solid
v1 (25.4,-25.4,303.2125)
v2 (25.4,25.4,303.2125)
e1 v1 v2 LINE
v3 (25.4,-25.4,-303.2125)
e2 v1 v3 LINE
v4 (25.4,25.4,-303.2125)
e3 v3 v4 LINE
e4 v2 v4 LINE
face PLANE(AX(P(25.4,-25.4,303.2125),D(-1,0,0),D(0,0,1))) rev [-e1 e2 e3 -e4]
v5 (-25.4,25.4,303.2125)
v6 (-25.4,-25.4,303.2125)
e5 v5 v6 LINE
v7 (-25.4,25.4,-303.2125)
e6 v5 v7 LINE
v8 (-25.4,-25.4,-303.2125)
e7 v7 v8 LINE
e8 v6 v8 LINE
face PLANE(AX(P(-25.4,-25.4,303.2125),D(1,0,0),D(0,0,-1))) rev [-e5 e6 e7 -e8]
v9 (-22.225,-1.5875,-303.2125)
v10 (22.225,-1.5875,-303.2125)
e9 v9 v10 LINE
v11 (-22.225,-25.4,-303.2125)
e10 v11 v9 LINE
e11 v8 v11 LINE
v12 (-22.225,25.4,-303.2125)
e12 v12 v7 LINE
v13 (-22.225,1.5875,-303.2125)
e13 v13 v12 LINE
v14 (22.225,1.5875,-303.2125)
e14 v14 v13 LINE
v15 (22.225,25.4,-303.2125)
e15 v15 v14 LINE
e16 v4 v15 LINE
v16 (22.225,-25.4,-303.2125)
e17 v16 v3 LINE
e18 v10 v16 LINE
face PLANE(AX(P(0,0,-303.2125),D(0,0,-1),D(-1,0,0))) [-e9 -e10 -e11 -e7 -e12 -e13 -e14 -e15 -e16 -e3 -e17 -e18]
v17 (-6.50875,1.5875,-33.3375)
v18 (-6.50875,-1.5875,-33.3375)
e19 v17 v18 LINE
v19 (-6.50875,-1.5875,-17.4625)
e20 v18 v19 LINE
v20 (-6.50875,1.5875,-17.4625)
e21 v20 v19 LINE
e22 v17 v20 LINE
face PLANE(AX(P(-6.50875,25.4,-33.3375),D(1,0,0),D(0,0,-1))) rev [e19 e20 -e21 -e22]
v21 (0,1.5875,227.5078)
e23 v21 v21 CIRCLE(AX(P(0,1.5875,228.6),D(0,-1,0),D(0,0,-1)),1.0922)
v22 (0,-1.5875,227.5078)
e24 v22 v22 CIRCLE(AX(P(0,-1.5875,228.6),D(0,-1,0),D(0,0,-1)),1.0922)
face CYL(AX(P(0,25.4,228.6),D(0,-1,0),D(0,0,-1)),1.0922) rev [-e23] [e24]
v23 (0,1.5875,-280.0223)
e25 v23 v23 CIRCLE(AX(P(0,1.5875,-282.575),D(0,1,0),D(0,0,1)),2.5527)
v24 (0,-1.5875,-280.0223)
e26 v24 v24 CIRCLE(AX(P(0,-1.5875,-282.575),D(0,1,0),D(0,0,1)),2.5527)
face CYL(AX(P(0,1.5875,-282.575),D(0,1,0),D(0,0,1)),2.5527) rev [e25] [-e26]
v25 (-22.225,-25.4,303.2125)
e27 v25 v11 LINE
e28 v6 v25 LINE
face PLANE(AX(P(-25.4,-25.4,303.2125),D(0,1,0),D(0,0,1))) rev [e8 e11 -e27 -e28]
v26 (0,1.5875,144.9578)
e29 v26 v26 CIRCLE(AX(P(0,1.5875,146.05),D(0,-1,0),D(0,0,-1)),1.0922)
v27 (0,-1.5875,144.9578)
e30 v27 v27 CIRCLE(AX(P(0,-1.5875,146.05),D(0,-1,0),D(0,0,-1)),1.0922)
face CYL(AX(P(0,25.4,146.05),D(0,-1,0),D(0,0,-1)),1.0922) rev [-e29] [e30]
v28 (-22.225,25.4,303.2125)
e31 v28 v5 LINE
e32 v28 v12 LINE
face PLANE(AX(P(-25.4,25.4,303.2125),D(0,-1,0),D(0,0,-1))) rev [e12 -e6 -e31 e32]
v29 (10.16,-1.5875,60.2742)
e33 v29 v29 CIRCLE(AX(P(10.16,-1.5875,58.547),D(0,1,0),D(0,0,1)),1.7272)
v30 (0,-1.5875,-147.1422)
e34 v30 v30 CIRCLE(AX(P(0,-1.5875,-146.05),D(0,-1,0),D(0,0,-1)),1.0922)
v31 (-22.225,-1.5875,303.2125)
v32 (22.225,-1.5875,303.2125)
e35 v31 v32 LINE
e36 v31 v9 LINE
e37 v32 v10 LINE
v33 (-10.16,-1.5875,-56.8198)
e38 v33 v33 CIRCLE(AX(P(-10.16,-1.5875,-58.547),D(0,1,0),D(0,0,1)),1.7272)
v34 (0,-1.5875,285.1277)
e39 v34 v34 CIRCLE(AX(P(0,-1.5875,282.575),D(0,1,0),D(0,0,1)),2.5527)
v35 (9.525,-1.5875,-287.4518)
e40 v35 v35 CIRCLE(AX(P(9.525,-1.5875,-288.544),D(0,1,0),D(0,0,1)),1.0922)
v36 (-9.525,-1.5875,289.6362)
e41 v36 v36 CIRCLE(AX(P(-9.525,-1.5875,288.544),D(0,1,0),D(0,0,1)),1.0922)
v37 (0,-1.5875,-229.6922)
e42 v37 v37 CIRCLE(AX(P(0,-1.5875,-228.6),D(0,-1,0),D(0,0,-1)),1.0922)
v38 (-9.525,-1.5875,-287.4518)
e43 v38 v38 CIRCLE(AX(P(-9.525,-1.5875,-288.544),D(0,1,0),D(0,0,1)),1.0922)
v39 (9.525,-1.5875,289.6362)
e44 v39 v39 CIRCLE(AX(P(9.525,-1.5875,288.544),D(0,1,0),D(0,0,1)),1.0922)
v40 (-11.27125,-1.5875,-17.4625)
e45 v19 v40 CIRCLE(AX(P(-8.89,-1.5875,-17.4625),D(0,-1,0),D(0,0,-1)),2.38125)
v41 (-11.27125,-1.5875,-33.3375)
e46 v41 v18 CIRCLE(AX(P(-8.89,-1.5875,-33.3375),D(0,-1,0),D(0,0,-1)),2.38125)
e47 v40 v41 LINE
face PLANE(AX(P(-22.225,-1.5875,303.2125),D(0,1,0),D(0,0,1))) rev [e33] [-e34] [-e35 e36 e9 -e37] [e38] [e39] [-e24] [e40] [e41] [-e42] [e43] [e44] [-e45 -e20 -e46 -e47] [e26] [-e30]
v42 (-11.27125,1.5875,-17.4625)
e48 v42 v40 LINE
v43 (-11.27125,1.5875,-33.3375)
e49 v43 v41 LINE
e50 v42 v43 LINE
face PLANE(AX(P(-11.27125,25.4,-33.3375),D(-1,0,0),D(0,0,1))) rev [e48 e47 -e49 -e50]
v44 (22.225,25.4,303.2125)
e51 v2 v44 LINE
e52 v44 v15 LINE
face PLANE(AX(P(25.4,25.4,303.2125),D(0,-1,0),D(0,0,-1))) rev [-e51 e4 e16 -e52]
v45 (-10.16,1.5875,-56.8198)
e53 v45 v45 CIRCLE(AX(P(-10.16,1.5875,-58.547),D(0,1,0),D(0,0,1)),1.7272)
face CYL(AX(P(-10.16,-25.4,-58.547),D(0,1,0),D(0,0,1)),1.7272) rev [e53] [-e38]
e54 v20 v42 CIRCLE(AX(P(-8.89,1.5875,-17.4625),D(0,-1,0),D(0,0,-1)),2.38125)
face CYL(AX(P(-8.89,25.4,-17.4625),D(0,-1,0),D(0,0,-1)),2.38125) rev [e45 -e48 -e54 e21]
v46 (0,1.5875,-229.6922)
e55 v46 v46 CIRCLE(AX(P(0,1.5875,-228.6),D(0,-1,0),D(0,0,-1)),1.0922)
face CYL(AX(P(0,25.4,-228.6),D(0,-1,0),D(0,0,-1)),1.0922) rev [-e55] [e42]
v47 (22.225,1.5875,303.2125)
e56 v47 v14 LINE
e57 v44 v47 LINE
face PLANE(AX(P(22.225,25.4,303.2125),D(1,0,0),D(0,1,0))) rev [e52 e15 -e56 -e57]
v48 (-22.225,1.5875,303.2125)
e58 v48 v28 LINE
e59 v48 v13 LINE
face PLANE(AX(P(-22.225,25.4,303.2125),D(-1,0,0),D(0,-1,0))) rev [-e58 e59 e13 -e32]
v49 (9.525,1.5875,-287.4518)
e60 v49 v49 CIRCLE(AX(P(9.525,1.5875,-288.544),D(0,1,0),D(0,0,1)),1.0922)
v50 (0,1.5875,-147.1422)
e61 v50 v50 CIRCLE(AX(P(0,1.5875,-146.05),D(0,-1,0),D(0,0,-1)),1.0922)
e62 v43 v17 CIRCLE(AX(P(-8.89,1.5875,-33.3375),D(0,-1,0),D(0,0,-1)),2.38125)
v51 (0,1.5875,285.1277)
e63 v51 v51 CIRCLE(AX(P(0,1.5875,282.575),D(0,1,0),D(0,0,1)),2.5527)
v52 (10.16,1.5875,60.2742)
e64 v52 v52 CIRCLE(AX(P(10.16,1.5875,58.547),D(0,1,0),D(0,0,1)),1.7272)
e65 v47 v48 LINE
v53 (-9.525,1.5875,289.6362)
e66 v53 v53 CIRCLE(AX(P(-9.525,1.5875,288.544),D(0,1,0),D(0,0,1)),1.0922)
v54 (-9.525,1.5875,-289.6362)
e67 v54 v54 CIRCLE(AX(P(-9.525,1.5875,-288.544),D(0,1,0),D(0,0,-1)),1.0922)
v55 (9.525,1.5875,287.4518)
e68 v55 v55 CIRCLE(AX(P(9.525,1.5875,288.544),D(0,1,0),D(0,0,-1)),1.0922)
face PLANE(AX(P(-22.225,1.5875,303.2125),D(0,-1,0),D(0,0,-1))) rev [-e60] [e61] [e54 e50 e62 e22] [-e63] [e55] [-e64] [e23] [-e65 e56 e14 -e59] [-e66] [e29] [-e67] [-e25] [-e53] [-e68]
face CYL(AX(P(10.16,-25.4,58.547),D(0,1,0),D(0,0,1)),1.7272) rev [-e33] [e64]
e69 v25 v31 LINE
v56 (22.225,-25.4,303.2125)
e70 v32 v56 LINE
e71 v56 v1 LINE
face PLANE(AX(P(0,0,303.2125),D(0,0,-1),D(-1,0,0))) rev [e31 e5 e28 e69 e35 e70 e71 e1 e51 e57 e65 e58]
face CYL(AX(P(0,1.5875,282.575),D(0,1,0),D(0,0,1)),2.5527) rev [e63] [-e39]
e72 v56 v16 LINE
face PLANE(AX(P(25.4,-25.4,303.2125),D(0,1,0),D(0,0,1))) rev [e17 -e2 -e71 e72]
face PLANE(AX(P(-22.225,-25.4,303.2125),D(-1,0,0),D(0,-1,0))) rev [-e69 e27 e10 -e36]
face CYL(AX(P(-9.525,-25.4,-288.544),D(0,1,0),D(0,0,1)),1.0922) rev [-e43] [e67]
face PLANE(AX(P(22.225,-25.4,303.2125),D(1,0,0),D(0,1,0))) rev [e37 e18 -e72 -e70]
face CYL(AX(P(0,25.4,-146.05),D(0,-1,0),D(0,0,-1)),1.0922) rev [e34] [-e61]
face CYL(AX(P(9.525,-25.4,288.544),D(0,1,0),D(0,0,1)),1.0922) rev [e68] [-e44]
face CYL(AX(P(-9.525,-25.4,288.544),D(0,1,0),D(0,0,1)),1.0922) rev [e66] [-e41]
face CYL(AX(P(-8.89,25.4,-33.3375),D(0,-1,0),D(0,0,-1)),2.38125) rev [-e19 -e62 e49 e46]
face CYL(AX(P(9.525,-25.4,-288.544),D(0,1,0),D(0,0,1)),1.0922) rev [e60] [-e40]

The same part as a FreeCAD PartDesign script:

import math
import FreeCAD as App
import Part
import Sketcher
from FreeCAD import Vector
Q = App.Units.Quantity

doc = App.newDocument("Part")
body = doc.addObject("PartDesign::Body", "Body")

sketch1 = doc.addObject("Sketcher::SketchObject", "Sketch")
body.addObject(sketch1)
sketch1.AttachmentSupport = (doc.XY_Plane, [""])
sketch1.MapMode = "FlatFace"
sketch1.addGeometry(Part.LineSegment(Vector(-25.4, 25.4, 0), Vector(-25.4, -25.4, 0)), False)
sketch1.addGeometry(Part.LineSegment(Vector(-25.4, -25.4, 0), Vector(-22.2, -25.4, 0)), False)
sketch1.addGeometry(Part.LineSegment(Vector(-22.2, -25.4, 0), Vector(-22.2, -1.6, 0)), False)
sketch1.addGeometry(Part.LineSegment(Vector(-22.2, -1.6, 0), Vector(22.2, -1.6, 0)), False)
sketch1.addGeometry(Part.LineSegment(Vector(22.2, -1.6, 0), Vector(22.2, -25.4, 0)), False)
sketch1.addGeometry(Part.LineSegment(Vector(22.2, -25.4, 0), Vector(25.4, -25.4, 0)), False)
sketch1.addGeometry(Part.LineSegment(Vector(25.4, -25.4, 0), Vector(25.4, 25.4, 0)), False)
sketch1.addGeometry(Part.LineSegment(Vector(25.4, 25.4, 0), Vector(22.2, 25.4, 0)), False)
sketch1.addGeometry(Part.LineSegment(Vector(22.2, 25.4, 0), Vector(22.2, 1.6, 0)), False)
sketch1.addGeometry(Part.LineSegment(Vector(22.2, 1.6, 0), Vector(-22.2, 1.6, 0)), False)
sketch1.addGeometry(Part.LineSegment(Vector(-22.2, 1.6, 0), Vector(-22.2, 25.4, 0)), False)
sketch1.addGeometry(Part.LineSegment(Vector(-22.2, 25.4, 0), Vector(-25.4, 25.4, 0)), False)
sketch1.addConstraint(Sketcher.Constraint("Coincident", 0, 2, 1, 1))
sketch1.addConstraint(Sketcher.Constraint("Coincident", 1, 2, 2, 1))
sketch1.addConstraint(Sketcher.Constraint("Coincident", 2, 2, 3, 1))
sketch1.addConstraint(Sketcher.Constraint("Coincident", 3, 2, 4, 1))
sketch1.addConstraint(Sketcher.Constraint("Coincident", 4, 2, 5, 1))
sketch1.addConstraint(Sketcher.Constraint("Coincident", 5, 2, 6, 1))
sketch1.addConstraint(Sketcher.Constraint("Coincident", 6, 2, 7, 1))
sketch1.addConstraint(Sketcher.Constraint("Coincident", 7, 2, 8, 1))
sketch1.addConstraint(Sketcher.Constraint("Coincident", 8, 2, 9, 1))
sketch1.addConstraint(Sketcher.Constraint("Coincident", 9, 2, 10, 1))
sketch1.addConstraint(Sketcher.Constraint("Coincident", 10, 2, 11, 1))
sketch1.addConstraint(Sketcher.Constraint("Coincident", 11, 2, 0, 1))
sketch1.addConstraint(Sketcher.Constraint("Vertical", 0))
sketch1.addConstraint(Sketcher.Constraint("Horizontal", 1))
sketch1.addConstraint(Sketcher.Constraint("Vertical", 2))
sketch1.addConstraint(Sketcher.Constraint("Horizontal", 3))
sketch1.addConstraint(Sketcher.Constraint("Vertical", 4))
sketch1.addConstraint(Sketcher.Constraint("Horizontal", 5))
sketch1.addConstraint(Sketcher.Constraint("Vertical", 6))
sketch1.addConstraint(Sketcher.Constraint("Horizontal", 7))
sketch1.addConstraint(Sketcher.Constraint("Vertical", 8))
sketch1.addConstraint(Sketcher.Constraint("Horizontal", 9))
sketch1.addConstraint(Sketcher.Constraint("Vertical", 10))
sketch1.addConstraint(Sketcher.Constraint("Horizontal", 11))
sketch1.addConstraint(Sketcher.Constraint("Symmetric", 0, 2, 6, 2, -1, 1))
sketch1.addConstraint(Sketcher.Constraint("Symmetric", 2, 2, 8, 2, -1, 1))
sketch1.addConstraint(Sketcher.Constraint("Symmetric", 4, 2, 10, 2, -1, 1))
sketch1.addConstraint(Sketcher.Constraint("Symmetric", 1, 2, 4, 2, -2))
sketch1.addConstraint(Sketcher.Constraint("DistanceY", 0, 2, 0, 1, Q("2 in")))
sketch1.addConstraint(Sketcher.Constraint("DistanceX", 0, 2, -1, 1, Q("1 in")))
sketch1.addConstraint(Sketcher.Constraint("DistanceX", 3, 1, 3, 2, Q("1.75 in")))
sketch1.addConstraint(Sketcher.Constraint("DistanceY", 2, 1, 2, 2, Q("0.9375 in")))
pad1 = doc.addObject("PartDesign::Pad", "Pad")
body.addObject(pad1)
pad1.Profile = sketch1
pad1.Length = Q("23.875 in")
pad1.Midplane = True

sketch2 = doc.addObject("Sketcher::SketchObject", "Sketch001")
body.addObject(sketch2)
sketch2.AttachmentSupport = (doc.XZ_Plane, [""])
sketch2.MapMode = "FlatFace"
sketch2.AttachmentOffset = App.Placement(Vector(0, 0, -0.0625 * 25.4), App.Rotation())
sketch2.addGeometry(Part.Circle(Vector(10.2, 58.5, 0), Vector(0, 0, 1), 1.7), False)
sketch2.addGeometry(Part.Circle(Vector(-10.2, -58.5, 0), Vector(0, 0, 1), 1.7), False)
sketch2.addConstraint(Sketcher.Constraint("Equal", 0, 1))
sketch2.addConstraint(Sketcher.Constraint("Symmetric", 0, 3, 1, 3, -1, 1))
sketch2.addConstraint(Sketcher.Constraint("Diameter", 0, Q("0.136 in")))
sketch2.addConstraint(Sketcher.Constraint("DistanceX", -1, 1, 0, 3, Q("0.4 in")))
sketch2.addConstraint(Sketcher.Constraint("DistanceY", 1, 3, 0, 3, Q("4.61 in")))
pocket1 = doc.addObject("PartDesign::Pocket", "Pocket")
body.addObject(pocket1)
pocket1.Profile = sketch2
pocket1.Type = "ThroughAll"
pocket1.Reversed = True

sketch3 = doc.addObject("Sketcher::SketchObject", "Sketch002")
body.addObject(sketch3)
sketch3.AttachmentSupport = (doc.XZ_Plane, [""])
sketch3.MapMode = "FlatFace"
sketch3.AttachmentOffset = App.Placement(Vector(0, 0, 0.0625 * 25.4), App.Rotation())
sketch3.addGeometry(Part.LineSegment(Vector(-11.3, -17.5, 0), Vector(-11.3, -33.3, 0)), False)
sketch3.addGeometry(Part.ArcOfCircle(Part.Circle(Vector(-8.9, -33.3, 0), Vector(0, 0, 1), 2.4), math.radians(180), math.radians(360)), False)
sketch3.addGeometry(Part.LineSegment(Vector(-6.5, -33.3, 0), Vector(-6.5, -17.5, 0)), False)
sketch3.addGeometry(Part.ArcOfCircle(Part.Circle(Vector(-8.9, -17.5, 0), Vector(0, 0, 1), 2.4), math.radians(0), math.radians(180)), False)
sketch3.addConstraint(Sketcher.Constraint("Tangent", 0, 2, 1, 1))
sketch3.addConstraint(Sketcher.Constraint("Tangent", 1, 2, 2, 1))
sketch3.addConstraint(Sketcher.Constraint("Tangent", 2, 2, 3, 1))
sketch3.addConstraint(Sketcher.Constraint("Tangent", 3, 2, 0, 1))
sketch3.addConstraint(Sketcher.Constraint("Vertical", 0))
sketch3.addConstraint(Sketcher.Constraint("Vertical", 2))
sketch3.addConstraint(Sketcher.Constraint("Radius", 1, Q("0.09375 in")))
sketch3.addConstraint(Sketcher.Constraint("DistanceY", 0, 2, 0, 1, Q("0.625 in")))
sketch3.addConstraint(Sketcher.Constraint("DistanceX", 1, 3, -1, 1, Q("0.35 in")))
sketch3.addConstraint(Sketcher.Constraint("DistanceY", 1, 3, -1, 1, Q("1.3125 in")))
pocket2 = doc.addObject("PartDesign::Pocket", "Pocket001")
body.addObject(pocket2)
pocket2.Profile = sketch3
pocket2.Type = "ThroughAll"

sketch4 = doc.addObject("Sketcher::SketchObject", "Sketch003")
body.addObject(sketch4)
sketch4.AttachmentSupport = (doc.XZ_Plane, [""])
sketch4.MapMode = "FlatFace"
sketch4.AttachmentOffset = App.Placement(Vector(0, 0, -0.0625 * 25.4), App.Rotation())
sketch4.addGeometry(Part.Circle(Vector(-9.5, 288.5, 0), Vector(0, 0, 1), 1.1), False)
sketch4.addGeometry(Part.Circle(Vector(9.5, 288.5, 0), Vector(0, 0, 1), 1.1), False)
sketch4.addGeometry(Part.Circle(Vector(9.5, -288.5, 0), Vector(0, 0, 1), 1.1), False)
sketch4.addGeometry(Part.Circle(Vector(-9.5, -288.5, 0), Vector(0, 0, 1), 1.1), False)
sketch4.addConstraint(Sketcher.Constraint("Equal", 0, 1))
sketch4.addConstraint(Sketcher.Constraint("Equal", 1, 2))
sketch4.addConstraint(Sketcher.Constraint("Equal", 2, 3))
sketch4.addConstraint(Sketcher.Constraint("Symmetric", 0, 3, 2, 3, -1, 1))
sketch4.addConstraint(Sketcher.Constraint("Symmetric", 1, 3, 3, 3, -1, 1))
sketch4.addConstraint(Sketcher.Constraint("Symmetric", 0, 3, 1, 3, -2))
sketch4.addConstraint(Sketcher.Constraint("Diameter", 0, Q("0.086 in")))
sketch4.addConstraint(Sketcher.Constraint("DistanceY", -1, 1, 0, 3, Q("11.36 in")))
sketch4.addConstraint(Sketcher.Constraint("DistanceX", 0, 3, 1, 3, Q("0.75 in")))
pocket3 = doc.addObject("PartDesign::Pocket", "Pocket002")
body.addObject(pocket3)
pocket3.Profile = sketch4
pocket3.Type = "ThroughAll"
pocket3.Reversed = True

sketch5 = doc.addObject("Sketcher::SketchObject", "Sketch004")
body.addObject(sketch5)
sketch5.AttachmentSupport = (doc.XZ_Plane, [""])
sketch5.MapMode = "FlatFace"
sketch5.AttachmentOffset = App.Placement(Vector(0, 0, -0.0625 * 25.4), App.Rotation())
sketch5.addGeometry(Part.Circle(Vector(0, 282.6, 0), Vector(0, 0, 1), 2.6), False)
sketch5.addConstraint(Sketcher.Constraint("PointOnObject", 0, 3, -2))
sketch5.addConstraint(Sketcher.Constraint("Diameter", 0, Q("0.201 in")))
sketch5.addConstraint(Sketcher.Constraint("DistanceY", -1, 1, 0, 3, Q("11.125 in")))
doc.recompute()
hole = doc.addObject("PartDesign::Hole", "Hole")
body.addObject(hole)
hole.Profile = sketch5
hole.ThreadType = "None"
hole.Diameter = Q("0.201 in")
hole.DepthType = "ThroughAll"
hole.Reversed = True
doc.recompute()

mirrored = doc.addObject("PartDesign::Mirrored", "Mirrored")
body.addObject(mirrored)
mirrored.Originals = [hole]
mirrored.MirrorPlane = (doc.XY_Plane, [""])
body.Tip = mirrored

sketch6 = doc.addObject("Sketcher::SketchObject", "Sketch005")
body.addObject(sketch6)
sketch6.AttachmentSupport = (doc.XZ_Plane, [""])
sketch6.MapMode = "FlatFace"
sketch6.AttachmentOffset = App.Placement(Vector(0, 0, 0.0625 * 25.4), App.Rotation())
sketch6.addGeometry(Part.Circle(Vector(0, -228.6, 0), Vector(0, 0, 1), 1.1), False)
sketch6.addGeometry(Part.Circle(Vector(0, -146.1, 0), Vector(0, 0, 1), 1.1), False)
sketch6.addGeometry(Part.Circle(Vector(0, 146.1, 0), Vector(0, 0, 1), 1.1), False)
sketch6.addGeometry(Part.Circle(Vector(0, 228.6, 0), Vector(0, 0, 1), 1.1), False)
sketch6.addConstraint(Sketcher.Constraint("Equal", 0, 1))
sketch6.addConstraint(Sketcher.Constraint("Equal", 1, 2))
sketch6.addConstraint(Sketcher.Constraint("Equal", 2, 3))
sketch6.addConstraint(Sketcher.Constraint("Symmetric", 1, 3, 2, 3, -1, 1))
sketch6.addConstraint(Sketcher.Constraint("Symmetric", 0, 3, 3, 3, -1, 1))
sketch6.addConstraint(Sketcher.Constraint("PointOnObject", 0, 3, -2))
sketch6.addConstraint(Sketcher.Constraint("PointOnObject", 1, 3, -2))
sketch6.addConstraint(Sketcher.Constraint("Diameter", 0, Q("0.086 in")))
sketch6.addConstraint(Sketcher.Constraint("DistanceY", 0, 3, -1, 1, Q("9 in")))
sketch6.addConstraint(Sketcher.Constraint("DistanceY", 1, 3, 2, 3, Q("11.5 in")))
pocket4 = doc.addObject("PartDesign::Pocket", "Pocket003")
body.addObject(pocket4)
pocket4.Profile = sketch6
pocket4.Type = "ThroughAll"

doc.recompute()
